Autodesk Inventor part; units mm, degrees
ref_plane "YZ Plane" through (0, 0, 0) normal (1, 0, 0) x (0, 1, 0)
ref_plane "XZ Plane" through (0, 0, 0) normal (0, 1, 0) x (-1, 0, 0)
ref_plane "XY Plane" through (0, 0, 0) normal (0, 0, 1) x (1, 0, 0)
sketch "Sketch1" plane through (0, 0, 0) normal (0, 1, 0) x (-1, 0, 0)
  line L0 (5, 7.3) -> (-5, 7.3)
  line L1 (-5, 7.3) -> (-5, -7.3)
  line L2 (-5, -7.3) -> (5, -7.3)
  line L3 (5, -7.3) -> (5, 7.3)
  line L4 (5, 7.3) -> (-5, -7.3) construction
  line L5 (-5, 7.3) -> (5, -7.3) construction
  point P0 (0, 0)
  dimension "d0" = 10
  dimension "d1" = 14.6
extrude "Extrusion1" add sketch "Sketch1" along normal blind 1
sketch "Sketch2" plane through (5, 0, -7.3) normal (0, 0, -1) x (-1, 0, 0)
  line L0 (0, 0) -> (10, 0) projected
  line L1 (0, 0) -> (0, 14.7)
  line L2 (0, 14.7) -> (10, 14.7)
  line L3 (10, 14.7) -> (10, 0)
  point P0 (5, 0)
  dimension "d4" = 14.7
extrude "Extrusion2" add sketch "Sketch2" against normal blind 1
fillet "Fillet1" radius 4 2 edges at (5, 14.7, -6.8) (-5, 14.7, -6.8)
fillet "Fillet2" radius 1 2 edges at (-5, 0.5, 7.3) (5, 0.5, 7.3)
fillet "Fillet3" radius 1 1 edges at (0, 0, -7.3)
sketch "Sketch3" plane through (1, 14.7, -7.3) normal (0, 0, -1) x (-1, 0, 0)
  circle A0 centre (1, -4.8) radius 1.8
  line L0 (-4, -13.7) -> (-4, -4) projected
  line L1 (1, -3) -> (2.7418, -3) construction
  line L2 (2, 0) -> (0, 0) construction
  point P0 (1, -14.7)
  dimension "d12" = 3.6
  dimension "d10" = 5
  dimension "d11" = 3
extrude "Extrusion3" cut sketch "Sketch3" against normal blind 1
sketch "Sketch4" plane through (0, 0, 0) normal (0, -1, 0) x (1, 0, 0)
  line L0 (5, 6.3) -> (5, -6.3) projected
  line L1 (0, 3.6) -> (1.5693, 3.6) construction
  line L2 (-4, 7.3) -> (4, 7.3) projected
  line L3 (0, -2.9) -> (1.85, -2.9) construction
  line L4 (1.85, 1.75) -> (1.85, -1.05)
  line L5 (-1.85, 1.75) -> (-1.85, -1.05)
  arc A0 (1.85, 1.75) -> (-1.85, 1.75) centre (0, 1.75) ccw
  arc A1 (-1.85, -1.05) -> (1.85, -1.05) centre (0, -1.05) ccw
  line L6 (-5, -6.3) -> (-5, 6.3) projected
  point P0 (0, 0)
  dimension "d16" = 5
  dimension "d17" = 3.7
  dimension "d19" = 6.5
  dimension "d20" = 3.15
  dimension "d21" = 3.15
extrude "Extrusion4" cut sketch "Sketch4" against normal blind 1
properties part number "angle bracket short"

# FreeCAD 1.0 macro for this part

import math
import FreeCAD as App
import Part
import Sketcher
from FreeCAD import Vector


def edges_at(feature, points):
    """Names of the edges that pass closest to the given points."""
    edges = feature.Shape.Edges
    near = lambda p: min(range(len(edges)), key=lambda i: edges[i].distToShape(Part.Vertex(*p))[0])
    return sorted({f"Edge{near(p) + 1}" for p in points})

doc = App.newDocument("Part")
body = doc.addObject("PartDesign::Body", "Body")

sketch1 = body.newObject("Sketcher::SketchObject", "Sketch")
sketch1.AttachmentSupport = (doc.getObject("XZ_Plane"), [""])
sketch1.MapMode = "FlatFace"
sketch1.addGeometry([
    Part.LineSegment(Vector(-5, -7, 0), Vector(-5, 7, 0)),
    Part.LineSegment(Vector(-5, 7, 0), Vector(5, 7, 0)),
    Part.LineSegment(Vector(5, 7, 0), Vector(5, -7, 0)),
    Part.LineSegment(Vector(5, -7, 0), Vector(-5, -7, 0)),
], False)
sketch1.addConstraint([
    Sketcher.Constraint("Coincident", 0, 2, 1, 1),
    Sketcher.Constraint("Coincident", 1, 2, 2, 1),
    Sketcher.Constraint("Coincident", 2, 2, 3, 1),
    Sketcher.Constraint("Coincident", 3, 2, 0, 1),
    Sketcher.Constraint("Vertical", 0),
    Sketcher.Constraint("Horizontal", 1),
    Sketcher.Constraint("Vertical", 2),
    Sketcher.Constraint("Horizontal", 3),
    Sketcher.Constraint("Symmetric", 0, 2, 2, 2, -1, 1),
    Sketcher.Constraint("DistanceX", 1, 1, 1, 2, 10.0),
    Sketcher.Constraint("DistanceY", 0, 1, 0, 2, 14.6),
])
pad1 = body.newObject("PartDesign::Pad", "Pad")
pad1.Profile = sketch1
pad1.Length = 1
pad1.Reversed = True

sketch2 = body.newObject("Sketcher::SketchObject", "Sketch001")
sketch2.AttachmentSupport = (doc.getObject("XY_Plane"), [""])
sketch2.MapMode = "FlatFace"
sketch2.AttachmentOffset = App.Placement(Vector(0, 0, -7.3), App.Rotation())
sketch2.addGeometry([
    Part.LineSegment(Vector(5, 15, 0), Vector(5, 0, 0)),
    Part.LineSegment(Vector(5, 0, 0), Vector(-5, 0, 0)),
    Part.LineSegment(Vector(-5, 0, 0), Vector(-5, 15, 0)),
    Part.LineSegment(Vector(-5, 15, 0), Vector(5, 15, 0)),
], False)
sketch2.addConstraint([
    Sketcher.Constraint("Coincident", 0, 2, 1, 1),
    Sketcher.Constraint("Coincident", 1, 2, 2, 1),
    Sketcher.Constraint("Coincident", 2, 2, 3, 1),
    Sketcher.Constraint("Coincident", 3, 2, 0, 1),
    Sketcher.Constraint("Vertical", 0),
    Sketcher.Constraint("Horizontal", 1),
    Sketcher.Constraint("Vertical", 2),
    Sketcher.Constraint("Horizontal", 3),
    Sketcher.Constraint("Symmetric", 0, 2, 1, 2, -1, 1),
    Sketcher.Constraint("DistanceY", 0, 2, 0, 1, 14.7),
    Sketcher.Constraint("DistanceX", 1, 2, 1, 1, 10.0),
])
pad2 = body.newObject("PartDesign::Pad", "Pad001")
pad2.Profile = sketch2
pad2.Length = 1
doc.recompute()

fillet = body.newObject("PartDesign::Fillet", "Fillet")
fillet.Base = (pad2, edges_at(pad2, [(5, 14.7, -6.8), (-5, 14.7, -6.8)]))
fillet.Radius = 4
doc.recompute()

fillet2 = body.newObject("PartDesign::Fillet", "Fillet001")
fillet2.Base = (fillet, edges_at(fillet, [(-5, 0.5, 7.3), (5, 0.5, 7.3)]))
fillet2.Radius = 1
doc.recompute()

fillet3 = body.newObject("PartDesign::Fillet", "Fillet002")
fillet3.Base = (fillet2, edges_at(fillet2, [(0, 0, -7.3)]))
fillet3.Radius = 1

sketch3 = body.newObject("Sketcher::SketchObject", "Sketch002")
sketch3.AttachmentSupport = (doc.getObject("XY_Plane"), [""])
sketch3.MapMode = "FlatFace"
sketch3.AttachmentOffset = App.Placement(Vector(0, 0, -7.3), App.Rotation())
sketch3.addGeometry(Part.Circle(Vector(0, 9.9, 0), Vector(0, 0, 1), 1.8), False)
sketch3.addConstraint([
    Sketcher.Constraint("PointOnObject", 0, 3, -2),
    Sketcher.Constraint("Diameter", 0, 3.6),
    Sketcher.Constraint("DistanceY", -1, 1, 0, 3, 9.9),
])
pocket1 = body.newObject("PartDesign::Pocket", "Pocket")
pocket1.Profile = sketch3
pocket1.Length = 1
pocket1.Reversed = True

sketch4 = body.newObject("Sketcher::SketchObject", "Sketch003")
sketch4.AttachmentSupport = (doc.getObject("XZ_Plane"), [""])
sketch4.MapMode = "FlatFace"
sketch4.addGeometry([
    Part.LineSegment(Vector(1.9, -1.1, 0), Vector(1.9, 1.8, 0)),
    Part.ArcOfCircle(Part.Circle(Vector(0, 1.8, 0), Vector(0, 0, 1), 1.9), math.radians(0), math.radians(180)),
    Part.LineSegment(Vector(-1.9, 1.8, 0), Vector(-1.9, -1.1, 0)),
    Part.ArcOfCircle(Part.Circle(Vector(0, -1.1, 0), Vector(0, 0, 1), 1.9), math.radians(180), math.radians(360)),
], False)
sketch4.addConstraint([
    Sketcher.Constraint("Tangent", 0, 2, 1, 1),
    Sketcher.Constraint("Tangent", 1, 2, 2, 1),
    Sketcher.Constraint("Tangent", 2, 2, 3, 1),
    Sketcher.Constraint("Tangent", 3, 2, 0, 1),
    Sketcher.Constraint("Vertical", 0),
    Sketcher.Constraint("Vertical", 2),
    Sketcher.Constraint("PointOnObject", 1, 3, -2),
    Sketcher.Constraint("Radius", 1, 1.85),
    Sketcher.Constraint("DistanceY", 0, 1, 0, 2, 2.8),
    Sketcher.Constraint("DistanceY", -1, 1, 1, 3, 1.75),
])
pocket2 = body.newObject("PartDesign::Pocket", "Pocket001")
pocket2.Profile = sketch4
pocket2.Length = 1

doc.recompute()
